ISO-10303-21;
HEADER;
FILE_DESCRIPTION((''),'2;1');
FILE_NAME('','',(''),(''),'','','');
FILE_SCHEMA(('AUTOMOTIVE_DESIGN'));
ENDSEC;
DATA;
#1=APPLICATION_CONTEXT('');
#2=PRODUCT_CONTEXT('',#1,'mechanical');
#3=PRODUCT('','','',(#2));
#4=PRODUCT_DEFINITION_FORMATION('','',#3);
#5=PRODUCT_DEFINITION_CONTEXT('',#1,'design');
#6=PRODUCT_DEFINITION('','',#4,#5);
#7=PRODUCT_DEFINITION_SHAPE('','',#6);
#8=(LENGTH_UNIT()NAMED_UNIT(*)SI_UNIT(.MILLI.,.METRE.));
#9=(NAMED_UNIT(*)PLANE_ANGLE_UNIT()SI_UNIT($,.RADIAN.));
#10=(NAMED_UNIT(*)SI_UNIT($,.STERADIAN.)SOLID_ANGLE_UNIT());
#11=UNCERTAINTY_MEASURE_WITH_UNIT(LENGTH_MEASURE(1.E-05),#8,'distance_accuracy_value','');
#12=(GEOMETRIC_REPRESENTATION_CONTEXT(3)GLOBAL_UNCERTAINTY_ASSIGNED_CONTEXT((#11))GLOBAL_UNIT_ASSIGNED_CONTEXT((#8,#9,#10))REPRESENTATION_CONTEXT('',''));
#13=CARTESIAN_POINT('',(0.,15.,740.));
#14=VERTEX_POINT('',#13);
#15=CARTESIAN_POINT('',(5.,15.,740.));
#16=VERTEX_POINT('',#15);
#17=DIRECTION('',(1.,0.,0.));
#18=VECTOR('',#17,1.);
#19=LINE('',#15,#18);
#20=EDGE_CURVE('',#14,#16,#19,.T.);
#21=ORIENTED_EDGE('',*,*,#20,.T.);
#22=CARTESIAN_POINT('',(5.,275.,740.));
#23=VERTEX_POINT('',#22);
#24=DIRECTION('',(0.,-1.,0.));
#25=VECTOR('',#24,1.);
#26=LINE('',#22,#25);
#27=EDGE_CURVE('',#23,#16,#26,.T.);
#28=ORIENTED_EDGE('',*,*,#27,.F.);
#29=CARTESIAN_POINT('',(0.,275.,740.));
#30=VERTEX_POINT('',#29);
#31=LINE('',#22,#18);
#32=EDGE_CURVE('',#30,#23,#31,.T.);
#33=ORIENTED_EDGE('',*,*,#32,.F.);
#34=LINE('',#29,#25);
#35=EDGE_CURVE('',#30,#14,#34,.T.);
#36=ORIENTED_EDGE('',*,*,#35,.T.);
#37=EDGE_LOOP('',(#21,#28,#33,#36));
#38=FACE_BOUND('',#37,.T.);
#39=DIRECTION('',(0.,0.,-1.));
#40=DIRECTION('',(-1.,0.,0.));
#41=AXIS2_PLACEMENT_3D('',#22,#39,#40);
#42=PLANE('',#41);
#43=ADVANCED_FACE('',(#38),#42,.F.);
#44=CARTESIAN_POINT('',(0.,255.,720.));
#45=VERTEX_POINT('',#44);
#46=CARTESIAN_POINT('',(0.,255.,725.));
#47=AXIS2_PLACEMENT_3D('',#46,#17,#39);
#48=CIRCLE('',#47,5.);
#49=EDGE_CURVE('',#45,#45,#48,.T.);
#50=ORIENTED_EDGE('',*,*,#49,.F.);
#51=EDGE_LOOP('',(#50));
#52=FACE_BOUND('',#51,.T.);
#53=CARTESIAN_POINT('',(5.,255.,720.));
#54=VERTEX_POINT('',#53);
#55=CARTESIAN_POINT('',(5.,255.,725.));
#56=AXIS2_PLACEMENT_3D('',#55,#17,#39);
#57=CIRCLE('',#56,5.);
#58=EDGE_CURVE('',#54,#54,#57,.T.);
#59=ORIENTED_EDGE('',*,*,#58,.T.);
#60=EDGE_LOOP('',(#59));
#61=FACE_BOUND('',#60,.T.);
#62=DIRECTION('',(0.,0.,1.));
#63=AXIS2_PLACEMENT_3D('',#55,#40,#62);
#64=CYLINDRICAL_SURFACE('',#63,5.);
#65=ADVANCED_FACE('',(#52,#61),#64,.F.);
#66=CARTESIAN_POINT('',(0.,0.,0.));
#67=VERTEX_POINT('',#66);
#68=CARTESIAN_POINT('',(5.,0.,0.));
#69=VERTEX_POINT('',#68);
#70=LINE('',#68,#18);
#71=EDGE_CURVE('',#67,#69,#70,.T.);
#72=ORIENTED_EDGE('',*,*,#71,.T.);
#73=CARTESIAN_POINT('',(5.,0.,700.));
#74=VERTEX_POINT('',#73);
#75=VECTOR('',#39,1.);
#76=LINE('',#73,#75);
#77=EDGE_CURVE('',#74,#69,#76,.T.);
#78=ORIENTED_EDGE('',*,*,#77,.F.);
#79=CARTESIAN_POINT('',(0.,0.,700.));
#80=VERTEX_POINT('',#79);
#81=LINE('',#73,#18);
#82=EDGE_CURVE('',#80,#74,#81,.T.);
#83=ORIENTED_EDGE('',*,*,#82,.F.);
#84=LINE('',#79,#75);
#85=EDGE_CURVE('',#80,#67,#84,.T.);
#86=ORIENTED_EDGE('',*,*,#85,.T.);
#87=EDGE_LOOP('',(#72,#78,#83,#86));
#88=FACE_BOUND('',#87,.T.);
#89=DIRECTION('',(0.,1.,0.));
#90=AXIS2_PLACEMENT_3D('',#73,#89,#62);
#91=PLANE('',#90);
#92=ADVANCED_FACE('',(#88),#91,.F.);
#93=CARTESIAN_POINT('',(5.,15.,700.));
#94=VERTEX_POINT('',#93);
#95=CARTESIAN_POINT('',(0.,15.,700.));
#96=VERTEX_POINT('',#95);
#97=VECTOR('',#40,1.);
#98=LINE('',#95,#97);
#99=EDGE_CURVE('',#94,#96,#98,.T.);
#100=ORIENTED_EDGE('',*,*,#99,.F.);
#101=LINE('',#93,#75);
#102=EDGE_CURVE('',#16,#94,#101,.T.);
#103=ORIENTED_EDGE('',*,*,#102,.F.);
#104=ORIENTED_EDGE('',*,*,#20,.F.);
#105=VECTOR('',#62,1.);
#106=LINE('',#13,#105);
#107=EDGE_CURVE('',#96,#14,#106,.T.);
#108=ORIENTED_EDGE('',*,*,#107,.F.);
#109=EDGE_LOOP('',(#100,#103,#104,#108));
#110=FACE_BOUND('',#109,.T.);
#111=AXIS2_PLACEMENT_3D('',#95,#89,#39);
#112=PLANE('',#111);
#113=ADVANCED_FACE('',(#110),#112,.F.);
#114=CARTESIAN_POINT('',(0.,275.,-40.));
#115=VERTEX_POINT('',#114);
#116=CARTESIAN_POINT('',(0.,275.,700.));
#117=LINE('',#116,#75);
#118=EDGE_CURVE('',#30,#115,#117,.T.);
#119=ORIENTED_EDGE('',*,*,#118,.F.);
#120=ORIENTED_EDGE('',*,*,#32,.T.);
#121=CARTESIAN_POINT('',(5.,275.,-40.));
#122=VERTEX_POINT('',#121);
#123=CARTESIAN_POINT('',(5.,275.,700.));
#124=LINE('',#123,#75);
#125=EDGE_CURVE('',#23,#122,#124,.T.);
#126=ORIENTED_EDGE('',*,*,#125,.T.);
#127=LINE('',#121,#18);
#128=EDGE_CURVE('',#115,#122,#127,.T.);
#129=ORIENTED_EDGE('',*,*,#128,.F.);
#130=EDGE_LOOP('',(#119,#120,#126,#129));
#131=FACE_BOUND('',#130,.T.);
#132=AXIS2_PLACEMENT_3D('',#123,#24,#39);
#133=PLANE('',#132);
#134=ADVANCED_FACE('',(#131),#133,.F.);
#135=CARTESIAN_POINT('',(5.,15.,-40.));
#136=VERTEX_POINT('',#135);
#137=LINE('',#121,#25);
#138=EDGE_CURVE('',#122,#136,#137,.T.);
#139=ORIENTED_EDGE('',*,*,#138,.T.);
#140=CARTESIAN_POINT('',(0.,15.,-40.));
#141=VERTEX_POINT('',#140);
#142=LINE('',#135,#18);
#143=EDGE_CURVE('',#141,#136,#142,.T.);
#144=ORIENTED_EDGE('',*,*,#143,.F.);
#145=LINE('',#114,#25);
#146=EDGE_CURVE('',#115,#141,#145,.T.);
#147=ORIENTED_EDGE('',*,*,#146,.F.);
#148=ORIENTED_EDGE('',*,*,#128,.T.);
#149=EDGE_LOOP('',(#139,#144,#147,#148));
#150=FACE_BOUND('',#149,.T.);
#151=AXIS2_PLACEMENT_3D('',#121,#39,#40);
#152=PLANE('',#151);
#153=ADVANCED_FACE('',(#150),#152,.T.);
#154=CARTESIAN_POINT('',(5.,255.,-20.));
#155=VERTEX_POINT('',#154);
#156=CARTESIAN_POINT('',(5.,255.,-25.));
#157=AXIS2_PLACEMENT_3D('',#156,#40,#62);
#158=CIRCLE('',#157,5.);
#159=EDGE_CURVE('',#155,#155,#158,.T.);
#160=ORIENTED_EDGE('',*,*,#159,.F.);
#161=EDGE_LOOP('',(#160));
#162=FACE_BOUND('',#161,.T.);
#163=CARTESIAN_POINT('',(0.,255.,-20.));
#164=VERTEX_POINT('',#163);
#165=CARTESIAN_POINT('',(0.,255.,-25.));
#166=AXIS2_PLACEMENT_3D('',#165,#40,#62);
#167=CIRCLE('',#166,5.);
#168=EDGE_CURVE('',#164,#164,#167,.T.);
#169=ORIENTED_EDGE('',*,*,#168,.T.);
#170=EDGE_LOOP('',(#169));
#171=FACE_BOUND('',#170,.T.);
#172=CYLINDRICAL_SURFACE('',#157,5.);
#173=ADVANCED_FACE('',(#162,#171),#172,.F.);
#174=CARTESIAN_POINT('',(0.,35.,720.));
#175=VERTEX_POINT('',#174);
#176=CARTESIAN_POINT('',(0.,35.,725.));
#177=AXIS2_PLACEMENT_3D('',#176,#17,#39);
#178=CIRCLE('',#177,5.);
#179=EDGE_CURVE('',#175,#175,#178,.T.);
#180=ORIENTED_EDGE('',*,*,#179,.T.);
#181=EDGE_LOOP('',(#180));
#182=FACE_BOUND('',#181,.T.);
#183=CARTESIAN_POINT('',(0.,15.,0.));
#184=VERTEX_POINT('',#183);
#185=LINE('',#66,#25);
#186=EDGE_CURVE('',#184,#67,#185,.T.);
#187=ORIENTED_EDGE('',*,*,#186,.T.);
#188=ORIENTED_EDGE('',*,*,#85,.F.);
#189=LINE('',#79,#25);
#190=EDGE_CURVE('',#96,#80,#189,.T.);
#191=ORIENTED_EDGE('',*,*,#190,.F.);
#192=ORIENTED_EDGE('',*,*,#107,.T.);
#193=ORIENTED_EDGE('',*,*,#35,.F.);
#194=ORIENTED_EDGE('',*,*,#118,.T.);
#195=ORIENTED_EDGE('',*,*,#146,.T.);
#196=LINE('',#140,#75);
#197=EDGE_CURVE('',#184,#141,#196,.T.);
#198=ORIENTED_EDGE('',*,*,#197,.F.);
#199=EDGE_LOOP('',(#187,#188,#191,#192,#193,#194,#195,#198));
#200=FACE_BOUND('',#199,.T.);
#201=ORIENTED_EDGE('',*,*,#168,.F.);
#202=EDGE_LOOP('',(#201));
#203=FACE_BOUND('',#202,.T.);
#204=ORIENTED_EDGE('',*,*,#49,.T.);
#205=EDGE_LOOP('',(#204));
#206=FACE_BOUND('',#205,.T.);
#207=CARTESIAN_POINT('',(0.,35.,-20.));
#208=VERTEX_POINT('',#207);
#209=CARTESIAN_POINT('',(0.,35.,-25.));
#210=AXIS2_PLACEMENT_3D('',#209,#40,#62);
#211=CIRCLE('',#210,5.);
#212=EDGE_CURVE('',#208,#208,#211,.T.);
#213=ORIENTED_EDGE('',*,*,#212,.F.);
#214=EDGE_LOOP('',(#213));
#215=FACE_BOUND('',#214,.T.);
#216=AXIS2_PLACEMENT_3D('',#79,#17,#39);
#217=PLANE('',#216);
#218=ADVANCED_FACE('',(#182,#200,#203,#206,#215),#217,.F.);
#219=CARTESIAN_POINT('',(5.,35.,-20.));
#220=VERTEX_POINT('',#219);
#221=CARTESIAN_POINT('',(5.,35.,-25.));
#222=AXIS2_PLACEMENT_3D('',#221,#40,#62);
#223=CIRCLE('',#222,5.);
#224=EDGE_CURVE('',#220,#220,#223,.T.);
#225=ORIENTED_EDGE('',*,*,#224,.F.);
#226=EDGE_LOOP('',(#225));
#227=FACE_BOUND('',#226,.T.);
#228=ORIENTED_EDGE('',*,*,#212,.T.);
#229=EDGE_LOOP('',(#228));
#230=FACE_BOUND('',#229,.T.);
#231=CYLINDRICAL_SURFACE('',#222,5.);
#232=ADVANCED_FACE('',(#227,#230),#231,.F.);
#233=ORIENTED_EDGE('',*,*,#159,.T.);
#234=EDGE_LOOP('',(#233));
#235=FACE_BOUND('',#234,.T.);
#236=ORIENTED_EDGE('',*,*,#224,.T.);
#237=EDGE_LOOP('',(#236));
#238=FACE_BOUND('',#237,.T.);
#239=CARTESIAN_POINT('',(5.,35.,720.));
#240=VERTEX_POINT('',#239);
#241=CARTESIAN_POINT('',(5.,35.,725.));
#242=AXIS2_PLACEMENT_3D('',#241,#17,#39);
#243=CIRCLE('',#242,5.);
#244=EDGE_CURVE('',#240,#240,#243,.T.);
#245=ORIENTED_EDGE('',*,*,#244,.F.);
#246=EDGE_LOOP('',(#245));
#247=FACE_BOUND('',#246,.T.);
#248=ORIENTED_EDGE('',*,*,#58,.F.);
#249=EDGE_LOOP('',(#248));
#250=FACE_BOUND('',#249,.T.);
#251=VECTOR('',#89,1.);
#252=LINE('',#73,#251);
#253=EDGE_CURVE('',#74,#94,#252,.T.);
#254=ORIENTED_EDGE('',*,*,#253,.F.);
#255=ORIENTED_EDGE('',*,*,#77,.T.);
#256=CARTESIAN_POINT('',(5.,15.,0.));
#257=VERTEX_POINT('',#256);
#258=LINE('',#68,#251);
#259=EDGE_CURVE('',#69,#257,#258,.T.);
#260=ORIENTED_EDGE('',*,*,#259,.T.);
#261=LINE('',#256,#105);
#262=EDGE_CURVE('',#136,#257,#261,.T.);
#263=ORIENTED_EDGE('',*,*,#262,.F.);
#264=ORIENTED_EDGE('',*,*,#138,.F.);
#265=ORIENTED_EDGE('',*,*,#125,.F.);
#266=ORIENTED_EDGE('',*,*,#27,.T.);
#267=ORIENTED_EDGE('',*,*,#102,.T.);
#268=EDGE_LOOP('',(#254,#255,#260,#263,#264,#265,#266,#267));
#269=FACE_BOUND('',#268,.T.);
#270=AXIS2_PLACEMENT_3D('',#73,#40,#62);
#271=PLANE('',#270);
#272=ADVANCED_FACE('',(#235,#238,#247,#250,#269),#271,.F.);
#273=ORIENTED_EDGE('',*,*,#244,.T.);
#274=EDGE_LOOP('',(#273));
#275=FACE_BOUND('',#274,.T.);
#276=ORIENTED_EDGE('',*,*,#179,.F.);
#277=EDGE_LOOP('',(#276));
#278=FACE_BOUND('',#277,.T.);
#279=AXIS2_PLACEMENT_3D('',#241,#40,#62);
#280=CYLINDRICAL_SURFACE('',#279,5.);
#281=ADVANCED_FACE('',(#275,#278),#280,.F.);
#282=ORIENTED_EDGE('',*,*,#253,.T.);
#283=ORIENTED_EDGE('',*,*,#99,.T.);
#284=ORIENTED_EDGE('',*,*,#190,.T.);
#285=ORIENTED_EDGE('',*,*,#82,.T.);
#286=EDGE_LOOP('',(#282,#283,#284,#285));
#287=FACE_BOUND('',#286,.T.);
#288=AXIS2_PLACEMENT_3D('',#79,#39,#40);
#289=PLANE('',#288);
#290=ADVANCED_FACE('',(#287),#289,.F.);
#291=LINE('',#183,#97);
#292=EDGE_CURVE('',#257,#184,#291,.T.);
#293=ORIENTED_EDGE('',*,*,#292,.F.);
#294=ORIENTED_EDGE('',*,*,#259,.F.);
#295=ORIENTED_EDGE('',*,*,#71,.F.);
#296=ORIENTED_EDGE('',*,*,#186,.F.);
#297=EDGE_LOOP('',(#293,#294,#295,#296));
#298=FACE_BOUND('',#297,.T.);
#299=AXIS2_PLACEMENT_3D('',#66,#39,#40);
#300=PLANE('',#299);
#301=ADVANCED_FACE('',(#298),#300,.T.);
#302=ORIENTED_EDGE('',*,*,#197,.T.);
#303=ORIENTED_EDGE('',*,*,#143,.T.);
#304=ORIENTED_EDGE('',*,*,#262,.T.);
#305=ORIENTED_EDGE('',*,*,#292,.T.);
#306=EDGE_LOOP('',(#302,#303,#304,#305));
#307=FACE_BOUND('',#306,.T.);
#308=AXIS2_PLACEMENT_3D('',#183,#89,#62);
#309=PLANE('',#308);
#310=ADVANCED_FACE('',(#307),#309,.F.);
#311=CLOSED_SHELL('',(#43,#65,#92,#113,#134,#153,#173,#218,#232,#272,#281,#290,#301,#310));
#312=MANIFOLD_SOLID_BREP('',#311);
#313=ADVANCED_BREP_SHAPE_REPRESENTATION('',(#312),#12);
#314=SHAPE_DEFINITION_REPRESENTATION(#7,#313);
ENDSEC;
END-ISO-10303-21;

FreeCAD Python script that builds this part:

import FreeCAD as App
import Part
import Sketcher

V = App.Vector


def add_polygon(sketch, points):
    """Adds a closed chain of lines whose ends are joined by coincident constraints."""
    first, n = sketch.GeometryCount, len(points)
    for a, b in zip(points, points[1:] + points[:1]):
        sketch.addGeometry(Part.LineSegment(App.Vector(*a, 0), App.Vector(*b, 0)), False)
    for i in range(n):
        sketch.addConstraint(Sketcher.Constraint("Coincident", first + i, 2, first + (i + 1) % n, 1))

doc = App.newDocument("Part")
body = doc.addObject("PartDesign::Body", "Body")

sketch1 = doc.addObject("Sketcher::SketchObject", "Sketch")
body.addObject(sketch1)
sketch1.AttachmentSupport = (doc.XY_Plane, [""])
sketch1.MapMode = "FlatFace"
add_polygon(sketch1, [(0, 275), (0, 0), (5, 0), (5, 275)])
sketch1.addConstraint([
    Sketcher.Constraint("Vertical", 0),
    Sketcher.Constraint("Horizontal", 1),
    Sketcher.Constraint("Vertical", 2),
    Sketcher.Constraint("Horizontal", 3),
    Sketcher.Constraint("Coincident", 0, 2, -1, 1),
    Sketcher.Constraint("DistanceX", 1, 1, 1, 2, 5.0),
    Sketcher.Constraint("DistanceY", 0, 2, 0, 1, 275.0),
])
pad1 = doc.addObject("PartDesign::Pad", "Pad")
body.addObject(pad1)
pad1.Profile = sketch1
pad1.Length = 700

sketch2 = doc.addObject("Sketcher::SketchObject", "Sketch001")
body.addObject(sketch2)
sketch2.AttachmentSupport = (doc.XZ_Plane, [""])
sketch2.MapMode = "FlatFace"
sketch2.AttachmentOffset = App.Placement(V(0, 0, -15), App.Rotation())
add_polygon(sketch2, [(5, -40), (5, 0), (0, 0), (0, -40)])
sketch2.addConstraint([
    Sketcher.Constraint("Vertical", 0),
    Sketcher.Constraint("Horizontal", 1),
    Sketcher.Constraint("Vertical", 2),
    Sketcher.Constraint("Horizontal", 3),
    Sketcher.Constraint("Coincident", 1, 2, -1, 1),
    Sketcher.Constraint("DistanceX", 1, 2, 1, 1, 5.0),
    Sketcher.Constraint("DistanceY", 0, 1, 0, 2, 40.0),
])
pad2 = doc.addObject("PartDesign::Pad", "Pad001")
body.addObject(pad2)
pad2.Profile = sketch2
pad2.Length = 260
pad2.Reversed = True
doc.recompute()

datumplane = doc.addObject("PartDesign::Plane", "DatumPlane")
body.addObject(datumplane)
datumplane.AttachmentSupport = (doc.XY_Plane, [""])
datumplane.MapMode = "FlatFace"
datumplane.AttachmentOffset = App.Placement(V(0, 0, 350), App.Rotation())
mirrored = doc.addObject("PartDesign::Mirrored", "Mirrored")
body.addObject(mirrored)
mirrored.Originals = [pad2]
mirrored.MirrorPlane = (datumplane, [""])
body.Tip = mirrored

sketch3 = doc.addObject("Sketcher::SketchObject", "Sketch002")
body.addObject(sketch3)
sketch3.AttachmentSupport = (doc.YZ_Plane, [""])
sketch3.MapMode = "FlatFace"
sketch3.addGeometry([
    Part.Circle(V(255, -25, 0), V(0, 0, 1), 5),
    Part.Circle(V(35, -25, 0), V(0, 0, 1), 5),
], False)
sketch3.addConstraint([
    Sketcher.Constraint("Equal", 0, 1),
    Sketcher.Constraint("Horizontal", 0, 3, 1, 3),
    Sketcher.Constraint("Diameter", 0, 10.0),
    Sketcher.Constraint("DistanceX", -1, 1, 0, 3, 255.0),
    Sketcher.Constraint("DistanceY", 0, 3, -1, 1, 25.0),
    Sketcher.Constraint("DistanceX", -1, 1, 1, 3, 35.0),
])
pocket1 = doc.addObject("PartDesign::Pocket", "Pocket")
body.addObject(pocket1)
pocket1.Profile = sketch3
pocket1.Type = "ThroughAll"
pocket1.Reversed = True
doc.recompute()

datumplane2 = doc.addObject("PartDesign::Plane", "DatumPlane001")
body.addObject(datumplane2)
datumplane2.AttachmentSupport = (doc.XY_Plane, [""])
datumplane2.MapMode = "FlatFace"
datumplane2.AttachmentOffset = App.Placement(V(0, 0, 350), App.Rotation())
mirrored2 = doc.addObject("PartDesign::Mirrored", "Mirrored001")
body.addObject(mirrored2)
mirrored2.Originals = [pocket1]
mirrored2.MirrorPlane = (datumplane2, [""])
body.Tip = mirrored2

doc.recompute()
